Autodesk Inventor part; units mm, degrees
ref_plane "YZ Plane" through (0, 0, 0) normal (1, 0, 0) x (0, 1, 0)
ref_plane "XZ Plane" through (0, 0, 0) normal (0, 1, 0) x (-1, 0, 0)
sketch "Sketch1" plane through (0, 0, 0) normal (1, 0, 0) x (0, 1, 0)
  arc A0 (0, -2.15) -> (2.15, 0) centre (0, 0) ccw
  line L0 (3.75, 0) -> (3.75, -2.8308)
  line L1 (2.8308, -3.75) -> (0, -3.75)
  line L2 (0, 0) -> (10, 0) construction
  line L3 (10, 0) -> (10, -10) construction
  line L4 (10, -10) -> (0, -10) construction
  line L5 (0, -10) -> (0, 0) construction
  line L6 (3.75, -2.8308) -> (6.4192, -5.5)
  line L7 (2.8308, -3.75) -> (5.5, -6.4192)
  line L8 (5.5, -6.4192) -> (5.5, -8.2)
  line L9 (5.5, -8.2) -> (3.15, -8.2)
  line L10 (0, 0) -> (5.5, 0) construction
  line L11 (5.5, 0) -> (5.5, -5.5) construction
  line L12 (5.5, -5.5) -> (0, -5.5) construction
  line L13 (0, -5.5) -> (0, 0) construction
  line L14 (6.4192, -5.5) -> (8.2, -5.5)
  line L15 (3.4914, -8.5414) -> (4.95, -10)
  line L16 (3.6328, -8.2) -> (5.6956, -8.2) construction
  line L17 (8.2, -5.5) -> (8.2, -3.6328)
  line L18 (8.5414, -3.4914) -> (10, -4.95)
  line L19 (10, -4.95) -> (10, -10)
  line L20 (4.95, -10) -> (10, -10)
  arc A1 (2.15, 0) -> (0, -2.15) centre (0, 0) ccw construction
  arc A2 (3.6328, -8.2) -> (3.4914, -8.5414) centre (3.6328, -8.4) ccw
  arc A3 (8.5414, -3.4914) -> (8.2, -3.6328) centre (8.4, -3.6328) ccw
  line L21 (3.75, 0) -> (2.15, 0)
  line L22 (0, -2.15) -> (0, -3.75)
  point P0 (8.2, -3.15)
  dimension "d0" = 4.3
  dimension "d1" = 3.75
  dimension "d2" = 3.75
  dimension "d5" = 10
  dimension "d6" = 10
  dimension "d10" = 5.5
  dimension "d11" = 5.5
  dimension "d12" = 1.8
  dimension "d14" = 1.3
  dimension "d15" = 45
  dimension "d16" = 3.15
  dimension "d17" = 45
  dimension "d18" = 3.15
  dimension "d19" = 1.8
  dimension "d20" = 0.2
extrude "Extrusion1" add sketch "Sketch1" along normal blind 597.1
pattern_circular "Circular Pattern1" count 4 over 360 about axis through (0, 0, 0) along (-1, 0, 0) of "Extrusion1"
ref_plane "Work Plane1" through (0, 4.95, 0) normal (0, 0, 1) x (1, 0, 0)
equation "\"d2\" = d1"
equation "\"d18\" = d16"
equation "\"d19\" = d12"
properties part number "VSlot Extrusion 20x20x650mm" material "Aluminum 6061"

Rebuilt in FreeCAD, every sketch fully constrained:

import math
import FreeCAD as App
import Part
import Sketcher
from FreeCAD import Vector
Q = App.Units.Quantity

doc = App.newDocument("Part")
params = doc.addObject("Spreadsheet::Sheet", "Params")
for row, (alias, value) in enumerate([
    ("sketch1_radius", "0.2 mm"),
    ("sketch1_radius2", "2.15 mm"),
    ("sketch1_width", "5.05 mm"),
    ("pad1_length", "597.1 mm"),
], start=1):
    params.set(f"A{row}", alias)
    params.set(f"B{row}", "=" + value)
    params.setAlias(f"B{row}", alias)

body = doc.addObject("PartDesign::Body", "Body")

sketch1 = body.newObject("Sketcher::SketchObject", "Sketch")
sketch1.AttachmentSupport = (doc.getObject("YZ_Plane"), [""])
sketch1.MapMode = "FlatFace"
sketch1.addGeometry(Part.ArcOfCircle(Part.Circle(Vector(0, 0, 0), Vector(0, 0, 1), 2.15), math.radians(-90), math.radians(0)), False)
sketch1.addGeometry(Part.LineSegment(Vector(0, -2.15, 0), Vector(0, -3.75, 0)), False)
sketch1.addGeometry(Part.LineSegment(Vector(0, -3.75, 0), Vector(2.83, -3.75, 0)), False)
sketch1.addGeometry(Part.LineSegment(Vector(2.83, -3.75, 0), Vector(5.5, -6.42, 0)), False)
sketch1.addGeometry(Part.LineSegment(Vector(5.5, -6.42, 0), Vector(5.5, -8.2, 0)), False)
sketch1.addGeometry(Part.LineSegment(Vector(5.5, -8.2, 0), Vector(3.63, -8.2, 0)), False)
sketch1.addGeometry(Part.ArcOfCircle(Part.Circle(Vector(3.63, -8.4, 0), Vector(0, 0, 1), 0.2), math.radians(90), math.radians(225)), False)
sketch1.addGeometry(Part.LineSegment(Vector(3.49, -8.54, 0), Vector(4.95, -10, 0)), False)
sketch1.addGeometry(Part.LineSegment(Vector(4.95, -10, 0), Vector(10, -10, 0)), False)
sketch1.addGeometry(Part.LineSegment(Vector(10, -10, 0), Vector(10, -4.95, 0)), False)
sketch1.addGeometry(Part.LineSegment(Vector(10, -4.95, 0), Vector(8.54, -3.49, 0)), False)
sketch1.addGeometry(Part.ArcOfCircle(Part.Circle(Vector(8.4, -3.63, 0), Vector(0, 0, 1), 0.2), math.radians(45), math.radians(180)), False)
sketch1.addGeometry(Part.LineSegment(Vector(8.2, -3.63, 0), Vector(8.2, -5.5, 0)), False)
sketch1.addGeometry(Part.LineSegment(Vector(8.2, -5.5, 0), Vector(6.42, -5.5, 0)), False)
sketch1.addGeometry(Part.LineSegment(Vector(6.42, -5.5, 0), Vector(3.75, -2.83, 0)), False)
sketch1.addGeometry(Part.LineSegment(Vector(3.75, -2.83, 0), Vector(3.75, 0, 0)), False)
sketch1.addGeometry(Part.LineSegment(Vector(3.75, 0, 0), Vector(2.15, 0, 0)), False)
sketch1.addConstraint(Sketcher.Constraint("Coincident", 0, 1, 1, 1))
sketch1.addConstraint(Sketcher.Constraint("Coincident", 1, 2, 2, 1))
sketch1.addConstraint(Sketcher.Constraint("Coincident", 2, 2, 3, 1))
sketch1.addConstraint(Sketcher.Constraint("Coincident", 3, 2, 4, 1))
sketch1.addConstraint(Sketcher.Constraint("Coincident", 4, 2, 5, 1))
sketch1.addConstraint(Sketcher.Constraint("Tangent", 5, 2, 6, 1))
sketch1.addConstraint(Sketcher.Constraint("Tangent", 6, 2, 7, 1))
sketch1.addConstraint(Sketcher.Constraint("Coincident", 7, 2, 8, 1))
sketch1.addConstraint(Sketcher.Constraint("Coincident", 8, 2, 9, 1))
sketch1.addConstraint(Sketcher.Constraint("Coincident", 9, 2, 10, 1))
sketch1.addConstraint(Sketcher.Constraint("Tangent", 10, 2, 11, 1))
sketch1.addConstraint(Sketcher.Constraint("Tangent", 11, 2, 12, 1))
sketch1.addConstraint(Sketcher.Constraint("Coincident", 12, 2, 13, 1))
sketch1.addConstraint(Sketcher.Constraint("Coincident", 13, 2, 14, 1))
sketch1.addConstraint(Sketcher.Constraint("Coincident", 14, 2, 15, 1))
sketch1.addConstraint(Sketcher.Constraint("Coincident", 15, 2, 16, 1))
sketch1.addConstraint(Sketcher.Constraint("Coincident", 16, 2, 0, 2))
sketch1.addConstraint(Sketcher.Constraint("Vertical", 1))
sketch1.addConstraint(Sketcher.Constraint("Horizontal", 2))
sketch1.addConstraint(Sketcher.Constraint("Vertical", 4))
sketch1.addConstraint(Sketcher.Constraint("Horizontal", 5))
sketch1.addConstraint(Sketcher.Constraint("Horizontal", 8))
sketch1.addConstraint(Sketcher.Constraint("Vertical", 9))
sketch1.addConstraint(Sketcher.Constraint("Vertical", 12))
sketch1.addConstraint(Sketcher.Constraint("Horizontal", 13))
sketch1.addConstraint(Sketcher.Constraint("Vertical", 15))
sketch1.addConstraint(Sketcher.Constraint("Horizontal", 16))
sketch1.addConstraint(Sketcher.Constraint("Coincident", 0, 3, -1, 1))
sketch1.addConstraint(Sketcher.Constraint("Equal", 6, 11))
sketch1.addConstraint(Sketcher.Constraint("PointOnObject", 0, 1, -2))
sketch1.addConstraint(Sketcher.Constraint("PointOnObject", 15, 2, -1))
sketch1.addConstraint(Sketcher.Constraint("Parallel", 3, 7))
sketch1.addConstraint(Sketcher.Constraint("Parallel", 7, 10))
sketch1.addConstraint(Sketcher.Constraint("Parallel", 10, 14))
sketch1.addConstraint(Sketcher.Constraint("Equal", 16, 1))
sketch1.addConstraint(Sketcher.Constraint("Equal", 13, 4))
sketch1.addConstraint(Sketcher.Constraint("Equal", 8, 9))
sketch1.addConstraint(Sketcher.Constraint("Equal", 5, 12))
sketch1.addConstraint(Sketcher.Constraint("Equal", 2, 15))
sketch1.addConstraint(Sketcher.Constraint("Equal", 7, 10))
sketch1.addConstraint(Sketcher.Constraint("Equal", 3, 14))
sketch1.addConstraint(Sketcher.Constraint("Radius", 6, Q("0.2 mm")))
sketch1.addConstraint(Sketcher.Constraint("Radius", 0, Q("2.15 mm")))
sketch1.addConstraint(Sketcher.Constraint("DistanceY", 7, 2, -1, 1, Q("10 mm")))
sketch1.addConstraint(Sketcher.Constraint("DistanceX", -1, 1, 3, 2, Q("5.5 mm")))
sketch1.addConstraint(Sketcher.Constraint("DistanceY", 7, 2, 4, 2, Q("1.8 mm")))
sketch1.addConstraint(Sketcher.Constraint("DistanceY", 1, 2, -1, 1, Q("3.75 mm")))
sketch1.addConstraint(Sketcher.Constraint("DistanceX", 8, 1, 8, 2, Q("5.05 mm")))
sketch1.addConstraint(Sketcher.Constraint("DistanceX", 2, 1, 2, 2, Q("2.8308 mm")))
sketch1.setExpression("Constraints[41]", "Params.sketch1_radius")
sketch1.setExpression("Constraints[42]", "Params.sketch1_radius2")
sketch1.setExpression("Constraints[47]", "Params.sketch1_width")
pad1 = body.newObject("PartDesign::Pad", "Pad")
pad1.Profile = sketch1
pad1.setExpression("Length", "Params.pad1_length")
doc.recompute()

polarpattern = body.newObject("PartDesign::PolarPattern", "PolarPattern")
polarpattern.Originals = [pad1]
polarpattern.Axis = (doc.getObject("X_Axis"), [""])
polarpattern.Angle = 360
polarpattern.Occurrences = 4
body.Tip = polarpattern

doc.recompute()
